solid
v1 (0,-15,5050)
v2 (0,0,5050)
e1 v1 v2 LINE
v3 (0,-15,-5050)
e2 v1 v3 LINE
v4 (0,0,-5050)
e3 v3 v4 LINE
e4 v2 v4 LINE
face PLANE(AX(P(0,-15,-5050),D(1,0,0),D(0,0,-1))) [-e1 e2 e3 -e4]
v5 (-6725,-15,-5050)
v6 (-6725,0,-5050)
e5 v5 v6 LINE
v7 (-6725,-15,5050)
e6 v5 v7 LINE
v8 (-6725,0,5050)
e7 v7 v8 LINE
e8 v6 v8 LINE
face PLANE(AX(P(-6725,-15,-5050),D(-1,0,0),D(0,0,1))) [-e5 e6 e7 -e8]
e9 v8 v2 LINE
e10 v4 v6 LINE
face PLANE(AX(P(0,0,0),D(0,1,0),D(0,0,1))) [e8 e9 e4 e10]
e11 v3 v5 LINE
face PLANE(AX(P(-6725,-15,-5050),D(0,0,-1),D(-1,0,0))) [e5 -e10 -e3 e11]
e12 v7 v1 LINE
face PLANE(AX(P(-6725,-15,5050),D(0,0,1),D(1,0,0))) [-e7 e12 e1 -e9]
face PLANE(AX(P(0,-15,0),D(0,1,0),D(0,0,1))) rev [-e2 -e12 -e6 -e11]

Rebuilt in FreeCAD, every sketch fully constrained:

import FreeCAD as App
import Part
import Sketcher
from FreeCAD import Vector

doc = App.newDocument("Part")
body = doc.addObject("PartDesign::Body", "Body")

sketch1 = body.newObject("Sketcher::SketchObject", "Sketch")
sketch1.AttachmentSupport = (doc.getObject("XZ_Plane"), [""])
sketch1.MapMode = "FlatFace"
sketch1.addGeometry([
    Part.LineSegment(Vector(-6725, -5050, 0), Vector(-6725, 5050, 0)),
    Part.LineSegment(Vector(-6725, 5050, 0), Vector(0, 5050, 0)),
    Part.LineSegment(Vector(0, 5050, 0), Vector(0, -5050, 0)),
    Part.LineSegment(Vector(0, -5050, 0), Vector(-6725, -5050, 0)),
], False)
sketch1.addConstraint([
    Sketcher.Constraint("Coincident", 0, 2, 1, 1),
    Sketcher.Constraint("Coincident", 1, 2, 2, 1),
    Sketcher.Constraint("Coincident", 2, 2, 3, 1),
    Sketcher.Constraint("Coincident", 3, 2, 0, 1),
    Sketcher.Constraint("Vertical", 0),
    Sketcher.Constraint("Horizontal", 1),
    Sketcher.Constraint("Vertical", 2),
    Sketcher.Constraint("Horizontal", 3),
    Sketcher.Constraint("Symmetric", 1, 2, 2, 2, -1, 1),
    Sketcher.Constraint("DistanceX", 1, 1, 1, 2, 6725.0),
    Sketcher.Constraint("DistanceY", 0, 1, 0, 2, 10100.0),
])
pad1 = body.newObject("PartDesign::Pad", "Pad")
pad1.Profile = sketch1
pad1.Length = 15

doc.recompute()
